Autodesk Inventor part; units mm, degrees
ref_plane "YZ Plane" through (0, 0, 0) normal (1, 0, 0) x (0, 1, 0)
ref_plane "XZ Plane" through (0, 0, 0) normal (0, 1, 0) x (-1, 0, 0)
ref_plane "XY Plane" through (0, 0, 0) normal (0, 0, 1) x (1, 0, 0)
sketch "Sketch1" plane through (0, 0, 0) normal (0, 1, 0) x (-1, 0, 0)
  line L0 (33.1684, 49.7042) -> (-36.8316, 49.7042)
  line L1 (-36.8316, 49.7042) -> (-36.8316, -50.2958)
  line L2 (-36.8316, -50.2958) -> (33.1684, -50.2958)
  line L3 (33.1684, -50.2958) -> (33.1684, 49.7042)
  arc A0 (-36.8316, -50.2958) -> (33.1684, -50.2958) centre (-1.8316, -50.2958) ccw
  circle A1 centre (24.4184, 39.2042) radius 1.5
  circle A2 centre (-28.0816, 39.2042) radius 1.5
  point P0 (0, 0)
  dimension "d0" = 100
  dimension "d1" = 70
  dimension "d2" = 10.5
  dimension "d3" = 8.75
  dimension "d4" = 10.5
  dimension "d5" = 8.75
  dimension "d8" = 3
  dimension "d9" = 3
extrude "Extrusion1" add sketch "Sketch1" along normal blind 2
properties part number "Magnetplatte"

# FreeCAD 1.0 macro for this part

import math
import FreeCAD as App
import Part
import Sketcher

V = App.Vector

doc = App.newDocument("Part")
params = doc.addObject("Spreadsheet::Sheet", "Params")
for row, (alias, value) in enumerate([
    ("sketch1_diameter", "3 mm"),
    ("sketch1_radius", "35 mm"),
    ("sketch1_height", "100 mm"),
    ("pad1_length", "2 mm"),
], start=1):
    params.set(f"A{row}", alias)
    params.set(f"B{row}", "=" + value)
    params.setAlias(f"B{row}", alias)

body = doc.addObject("PartDesign::Body", "Body")

sketch1 = body.newObject("Sketcher::SketchObject", "Sketch")
sketch1.AttachmentSupport = (doc.getObject("XZ_Plane"), [""])
sketch1.MapMode = "FlatFace"
sketch1.addGeometry([
    Part.LineSegment(V(-33.2, -50.3, 0), V(-33.2, 49.7, 0)),
    Part.LineSegment(V(-33.2, 49.7, 0), V(36.8, 49.7, 0)),
    Part.LineSegment(V(36.8, 49.7, 0), V(36.8, -50.3, 0)),
    Part.ArcOfCircle(Part.Circle(V(1.8, -50.3, 0), V(0, 0, 1), 35), math.radians(180), math.radians(360)),
    Part.Circle(V(28.1, 39.2, 0), V(0, 0, 1), 1.5),
    Part.Circle(V(-24.4, 39.2, 0), V(0, 0, 1), 1.5),
], False)
sketch1.addConstraint([
    Sketcher.Constraint("Coincident", 0, 2, 1, 1),
    Sketcher.Constraint("Coincident", 1, 2, 2, 1),
    Sketcher.Constraint("Tangent", 2, 2, 3, 2),
    Sketcher.Constraint("Tangent", 3, 1, 0, 1),
    Sketcher.Constraint("Vertical", 0),
    Sketcher.Constraint("Horizontal", 1),
    Sketcher.Constraint("Vertical", 2),
    Sketcher.Constraint("Equal", 4, 5),
    Sketcher.Constraint("Horizontal", 4, 3, 5, 3),
    Sketcher.Constraint("Diameter", 4, 3.0),
    Sketcher.Constraint("Radius", 3, 35.0),
    Sketcher.Constraint("DistanceY", 0, 1, 0, 2, 100.0),
    Sketcher.Constraint("DistanceY", 5, 3, 0, 2, 10.5),
    Sketcher.Constraint("DistanceX", 0, 2, 5, 3, 8.75),
    Sketcher.Constraint("DistanceX", 4, 3, 1, 2, 8.75),
    Sketcher.Constraint("DistanceX", -1, 1, 3, 3, 1.8316),
    Sketcher.Constraint("DistanceY", 3, 3, -1, 1, 50.2958),
])
sketch1.setExpression("Constraints[9]", "Params.sketch1_diameter")
sketch1.setExpression("Constraints[10]", "Params.sketch1_radius")
sketch1.setExpression("Constraints[11]", "Params.sketch1_height")
pad1 = body.newObject("PartDesign::Pad", "Pad")
pad1.Profile = sketch1
pad1.setExpression("Length", "Params.pad1_length")
pad1.Reversed = True

doc.recompute()
